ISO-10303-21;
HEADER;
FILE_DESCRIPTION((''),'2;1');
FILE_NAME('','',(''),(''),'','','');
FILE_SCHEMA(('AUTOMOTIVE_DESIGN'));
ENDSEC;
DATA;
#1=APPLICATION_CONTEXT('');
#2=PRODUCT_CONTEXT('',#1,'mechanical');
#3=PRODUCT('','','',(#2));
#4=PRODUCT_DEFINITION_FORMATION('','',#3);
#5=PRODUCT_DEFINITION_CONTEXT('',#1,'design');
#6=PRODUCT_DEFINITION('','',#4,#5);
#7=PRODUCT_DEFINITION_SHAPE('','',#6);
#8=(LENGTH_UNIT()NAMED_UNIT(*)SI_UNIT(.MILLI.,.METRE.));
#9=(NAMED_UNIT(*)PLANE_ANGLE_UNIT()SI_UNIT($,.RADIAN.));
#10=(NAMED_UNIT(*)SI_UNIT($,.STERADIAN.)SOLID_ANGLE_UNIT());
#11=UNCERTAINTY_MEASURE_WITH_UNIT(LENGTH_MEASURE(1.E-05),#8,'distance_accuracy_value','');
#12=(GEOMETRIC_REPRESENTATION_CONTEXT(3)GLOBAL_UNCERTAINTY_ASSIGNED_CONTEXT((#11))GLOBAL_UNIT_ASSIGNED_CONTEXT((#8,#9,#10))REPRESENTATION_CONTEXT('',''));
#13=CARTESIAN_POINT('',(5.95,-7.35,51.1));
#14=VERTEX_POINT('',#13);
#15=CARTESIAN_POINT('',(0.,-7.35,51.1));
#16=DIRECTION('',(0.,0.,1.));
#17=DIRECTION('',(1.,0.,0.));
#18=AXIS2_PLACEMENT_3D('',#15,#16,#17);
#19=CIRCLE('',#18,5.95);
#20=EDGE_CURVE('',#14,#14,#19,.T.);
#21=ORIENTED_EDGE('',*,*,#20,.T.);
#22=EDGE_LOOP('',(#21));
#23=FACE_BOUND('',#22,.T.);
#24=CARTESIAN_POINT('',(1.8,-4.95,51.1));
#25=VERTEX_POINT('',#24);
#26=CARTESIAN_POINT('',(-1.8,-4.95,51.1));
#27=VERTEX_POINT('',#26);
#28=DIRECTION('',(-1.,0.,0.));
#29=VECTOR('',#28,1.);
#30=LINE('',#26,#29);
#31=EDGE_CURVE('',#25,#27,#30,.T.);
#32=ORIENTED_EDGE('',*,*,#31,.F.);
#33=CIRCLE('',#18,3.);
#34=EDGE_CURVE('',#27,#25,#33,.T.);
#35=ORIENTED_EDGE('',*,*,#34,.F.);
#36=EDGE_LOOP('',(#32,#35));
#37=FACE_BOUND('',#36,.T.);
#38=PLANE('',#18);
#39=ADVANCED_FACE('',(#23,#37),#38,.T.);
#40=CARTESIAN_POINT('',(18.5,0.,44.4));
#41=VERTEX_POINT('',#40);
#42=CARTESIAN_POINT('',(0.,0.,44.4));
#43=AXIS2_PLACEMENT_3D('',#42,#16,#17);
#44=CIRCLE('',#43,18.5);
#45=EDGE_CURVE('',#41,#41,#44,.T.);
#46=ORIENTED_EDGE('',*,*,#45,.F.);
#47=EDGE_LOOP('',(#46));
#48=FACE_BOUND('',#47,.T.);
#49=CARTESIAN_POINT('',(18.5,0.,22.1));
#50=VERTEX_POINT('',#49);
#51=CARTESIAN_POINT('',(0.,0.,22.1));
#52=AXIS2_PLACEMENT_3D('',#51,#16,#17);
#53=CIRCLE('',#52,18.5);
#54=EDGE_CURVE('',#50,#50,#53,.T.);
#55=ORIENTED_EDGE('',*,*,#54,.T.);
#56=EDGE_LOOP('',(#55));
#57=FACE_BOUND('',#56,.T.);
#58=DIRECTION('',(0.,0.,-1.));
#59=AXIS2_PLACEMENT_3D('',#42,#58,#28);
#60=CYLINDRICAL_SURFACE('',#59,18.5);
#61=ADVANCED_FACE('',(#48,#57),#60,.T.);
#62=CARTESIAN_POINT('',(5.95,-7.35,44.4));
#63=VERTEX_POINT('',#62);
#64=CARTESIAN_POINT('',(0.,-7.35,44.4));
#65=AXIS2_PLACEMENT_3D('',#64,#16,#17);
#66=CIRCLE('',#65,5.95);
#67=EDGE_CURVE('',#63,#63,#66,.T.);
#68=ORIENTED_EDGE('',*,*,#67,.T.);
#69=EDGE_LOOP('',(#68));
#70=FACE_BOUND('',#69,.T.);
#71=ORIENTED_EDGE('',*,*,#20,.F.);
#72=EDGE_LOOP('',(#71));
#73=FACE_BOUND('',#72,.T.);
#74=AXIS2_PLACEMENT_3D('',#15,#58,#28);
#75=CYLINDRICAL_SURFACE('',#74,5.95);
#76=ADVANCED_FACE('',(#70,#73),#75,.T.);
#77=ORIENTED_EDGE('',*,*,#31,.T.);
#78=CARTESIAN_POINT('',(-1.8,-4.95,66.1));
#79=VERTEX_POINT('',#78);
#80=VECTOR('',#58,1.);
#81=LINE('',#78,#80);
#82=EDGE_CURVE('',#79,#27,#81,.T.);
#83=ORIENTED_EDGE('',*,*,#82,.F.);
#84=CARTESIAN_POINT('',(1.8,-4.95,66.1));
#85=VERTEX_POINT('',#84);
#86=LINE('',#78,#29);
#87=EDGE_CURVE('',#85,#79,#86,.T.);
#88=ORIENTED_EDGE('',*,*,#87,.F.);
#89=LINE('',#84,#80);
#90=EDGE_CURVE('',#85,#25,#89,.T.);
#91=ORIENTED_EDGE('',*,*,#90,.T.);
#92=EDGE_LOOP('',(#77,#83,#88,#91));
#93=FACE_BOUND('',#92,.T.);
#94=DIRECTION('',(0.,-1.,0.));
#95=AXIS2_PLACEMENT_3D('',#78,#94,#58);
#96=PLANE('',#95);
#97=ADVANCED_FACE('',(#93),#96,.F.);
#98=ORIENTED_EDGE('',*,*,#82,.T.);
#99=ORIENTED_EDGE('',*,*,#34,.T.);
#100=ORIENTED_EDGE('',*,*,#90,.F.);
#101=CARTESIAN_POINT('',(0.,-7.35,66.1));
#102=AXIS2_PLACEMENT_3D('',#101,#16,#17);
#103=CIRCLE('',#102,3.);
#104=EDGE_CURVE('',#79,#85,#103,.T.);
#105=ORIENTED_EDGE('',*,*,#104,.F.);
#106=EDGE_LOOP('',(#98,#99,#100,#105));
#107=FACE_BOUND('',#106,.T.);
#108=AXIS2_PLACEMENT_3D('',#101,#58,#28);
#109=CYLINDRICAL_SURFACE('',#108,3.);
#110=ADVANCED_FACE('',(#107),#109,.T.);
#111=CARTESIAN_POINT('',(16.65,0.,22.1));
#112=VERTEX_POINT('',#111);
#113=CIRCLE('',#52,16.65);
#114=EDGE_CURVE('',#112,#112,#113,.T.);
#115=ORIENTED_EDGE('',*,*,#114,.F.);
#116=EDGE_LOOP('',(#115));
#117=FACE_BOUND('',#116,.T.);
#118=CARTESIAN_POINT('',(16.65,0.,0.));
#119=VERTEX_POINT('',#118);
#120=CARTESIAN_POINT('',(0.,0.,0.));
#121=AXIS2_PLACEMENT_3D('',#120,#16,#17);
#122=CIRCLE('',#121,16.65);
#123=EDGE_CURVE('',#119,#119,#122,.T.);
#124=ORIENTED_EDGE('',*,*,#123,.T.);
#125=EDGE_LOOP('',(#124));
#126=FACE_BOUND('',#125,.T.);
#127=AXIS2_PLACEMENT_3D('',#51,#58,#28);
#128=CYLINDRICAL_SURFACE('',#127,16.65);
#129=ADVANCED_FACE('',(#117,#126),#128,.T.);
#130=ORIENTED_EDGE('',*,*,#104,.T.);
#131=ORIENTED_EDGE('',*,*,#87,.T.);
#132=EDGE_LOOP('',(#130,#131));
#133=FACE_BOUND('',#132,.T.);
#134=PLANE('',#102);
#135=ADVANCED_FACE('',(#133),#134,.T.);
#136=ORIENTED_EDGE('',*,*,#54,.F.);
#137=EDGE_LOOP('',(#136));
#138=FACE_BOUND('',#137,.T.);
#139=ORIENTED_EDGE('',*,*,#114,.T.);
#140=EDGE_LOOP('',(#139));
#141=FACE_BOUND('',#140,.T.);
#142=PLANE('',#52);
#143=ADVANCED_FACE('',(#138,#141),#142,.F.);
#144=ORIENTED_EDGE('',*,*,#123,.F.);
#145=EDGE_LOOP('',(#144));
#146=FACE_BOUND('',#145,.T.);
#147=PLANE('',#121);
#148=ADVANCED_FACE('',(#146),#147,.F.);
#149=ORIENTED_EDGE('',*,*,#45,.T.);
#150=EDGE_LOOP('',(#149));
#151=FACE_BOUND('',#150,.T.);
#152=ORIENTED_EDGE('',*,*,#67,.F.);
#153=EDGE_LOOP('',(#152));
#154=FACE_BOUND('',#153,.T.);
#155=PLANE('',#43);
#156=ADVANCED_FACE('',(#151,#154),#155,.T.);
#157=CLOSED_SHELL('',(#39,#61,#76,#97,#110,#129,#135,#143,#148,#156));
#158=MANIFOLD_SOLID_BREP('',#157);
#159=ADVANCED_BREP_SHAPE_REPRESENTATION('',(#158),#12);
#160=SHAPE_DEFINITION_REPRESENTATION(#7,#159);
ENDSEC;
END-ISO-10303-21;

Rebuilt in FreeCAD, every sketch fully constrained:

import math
import FreeCAD as App
import Part
import Sketcher
Q = App.Units.Quantity

doc = App.newDocument("Part")
body = doc.addObject("PartDesign::Body", "Body")

# Sketch on XY plane
sketch1 = doc.addObject("Sketcher::SketchObject", "Sketch")
body.addObject(sketch1)
sketch1.AttachmentSupport = (doc.XY_Plane, [""])
sketch1.MapMode = "FlatFace"
sketch1.addGeometry(Part.Circle(App.Vector(0, 0, 0), App.Vector(0, 0, 1), 17), False)
sketch1.addConstraint([
    Sketcher.Constraint("Coincident", 0, 3, -1, 1),
    Sketcher.Constraint("Diameter", 0, Q("33.3 mm")),
])
pad1 = doc.addObject("PartDesign::Pad", "Pad")
body.addObject(pad1)
pad1.Profile = sketch1
pad1.Length = 22.1

# Sketch on XY plane
sketch2 = doc.addObject("Sketcher::SketchObject", "Sketch001")
body.addObject(sketch2)
sketch2.AttachmentSupport = (doc.XY_Plane, [""])
sketch2.MapMode = "FlatFace"
sketch2.AttachmentOffset = App.Placement(App.Vector(0, 0, 22.1), App.Rotation())
sketch2.addGeometry(Part.Circle(App.Vector(0, 0, 0), App.Vector(0, 0, 1), 18), False)
sketch2.addConstraint([
    Sketcher.Constraint("Coincident", 0, 3, -1, 1),
    Sketcher.Constraint("Diameter", 0, Q("37 mm")),
])
pad2 = doc.addObject("PartDesign::Pad", "Pad001")
body.addObject(pad2)
pad2.Profile = sketch2
pad2.Length = 22.3

# Sketch on XY plane
sketch3 = doc.addObject("Sketcher::SketchObject", "Sketch002")
body.addObject(sketch3)
sketch3.AttachmentSupport = (doc.XY_Plane, [""])
sketch3.MapMode = "FlatFace"
sketch3.AttachmentOffset = App.Placement(App.Vector(0, 0, 44.4), App.Rotation())
sketch3.addGeometry(Part.Circle(App.Vector(0, -7, 0), App.Vector(0, 0, 1), 6), False)
sketch3.addConstraint([
    Sketcher.Constraint("PointOnObject", 0, 3, -2),
    Sketcher.Constraint("Diameter", 0, Q("11.9 mm")),
    Sketcher.Constraint("DistanceY", 0, 3, -1, 1, Q("7.35 mm")),
])
pad3 = doc.addObject("PartDesign::Pad", "Pad002")
body.addObject(pad3)
pad3.Profile = sketch3
pad3.Length = 6.7

# Sketch on XY plane
sketch4 = doc.addObject("Sketcher::SketchObject", "Sketch003")
body.addObject(sketch4)
sketch4.AttachmentSupport = (doc.XY_Plane, [""])
sketch4.MapMode = "FlatFace"
sketch4.AttachmentOffset = App.Placement(App.Vector(0, 0, 51.1), App.Rotation())
sketch4.addGeometry([
    Part.LineSegment(App.Vector(1.8, -5, 0), App.Vector(-1.8, -5, 0)),
    Part.ArcOfCircle(Part.Circle(App.Vector(0, -7.3, 0), App.Vector(0, 0, 1), 3), math.radians(127), math.radians(413)),
], False)
sketch4.addConstraint([
    Sketcher.Constraint("Coincident", 0, 1, 1, 2),
    Sketcher.Constraint("Coincident", 1, 1, 0, 2),
    Sketcher.Constraint("Horizontal", 0),
    Sketcher.Constraint("PointOnObject", 1, 3, -2),
    Sketcher.Constraint("Radius", 1, Q("3 mm")),
    Sketcher.Constraint("DistanceX", 0, 2, 0, 1, Q("3.6 mm")),
    Sketcher.Constraint("DistanceY", 1, 3, -1, 1, Q("7.35 mm")),
])
pad4 = doc.addObject("PartDesign::Pad", "Pad003")
body.addObject(pad4)
pad4.Profile = sketch4
pad4.Length = 15

doc.recompute()
